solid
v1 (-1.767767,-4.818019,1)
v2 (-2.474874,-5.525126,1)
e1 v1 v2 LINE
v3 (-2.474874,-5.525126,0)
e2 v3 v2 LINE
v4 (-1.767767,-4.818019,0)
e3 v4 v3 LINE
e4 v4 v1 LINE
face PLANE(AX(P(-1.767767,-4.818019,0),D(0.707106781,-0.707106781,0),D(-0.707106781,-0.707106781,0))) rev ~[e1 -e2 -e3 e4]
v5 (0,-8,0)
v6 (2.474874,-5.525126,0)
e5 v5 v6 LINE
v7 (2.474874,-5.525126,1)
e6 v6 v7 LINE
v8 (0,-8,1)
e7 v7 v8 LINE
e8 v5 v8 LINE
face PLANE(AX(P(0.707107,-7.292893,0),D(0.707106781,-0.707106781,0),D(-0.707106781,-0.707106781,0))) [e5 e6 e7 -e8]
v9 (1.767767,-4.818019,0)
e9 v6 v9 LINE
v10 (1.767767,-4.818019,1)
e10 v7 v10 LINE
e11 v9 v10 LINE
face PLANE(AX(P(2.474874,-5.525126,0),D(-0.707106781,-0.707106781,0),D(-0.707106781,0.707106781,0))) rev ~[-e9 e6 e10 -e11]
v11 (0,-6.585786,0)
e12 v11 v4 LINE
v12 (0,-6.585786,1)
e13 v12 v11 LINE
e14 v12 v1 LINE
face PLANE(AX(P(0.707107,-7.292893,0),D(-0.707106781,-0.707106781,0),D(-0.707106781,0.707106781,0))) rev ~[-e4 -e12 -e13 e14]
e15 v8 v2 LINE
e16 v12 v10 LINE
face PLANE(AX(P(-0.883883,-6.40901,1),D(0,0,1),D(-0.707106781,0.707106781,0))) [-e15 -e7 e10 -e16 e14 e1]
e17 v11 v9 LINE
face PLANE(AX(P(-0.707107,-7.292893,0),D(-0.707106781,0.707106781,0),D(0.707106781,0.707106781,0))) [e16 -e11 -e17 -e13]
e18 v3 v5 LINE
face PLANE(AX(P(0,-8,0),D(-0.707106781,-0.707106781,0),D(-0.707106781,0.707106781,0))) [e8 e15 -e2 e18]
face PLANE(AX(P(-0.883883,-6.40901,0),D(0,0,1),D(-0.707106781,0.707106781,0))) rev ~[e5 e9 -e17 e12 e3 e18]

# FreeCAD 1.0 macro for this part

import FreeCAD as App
import Part
import Sketcher
from FreeCAD import Vector


def add_polygon(sketch, points):
    """Adds a closed chain of lines whose ends are joined by coincident constraints."""
    first, n = sketch.GeometryCount, len(points)
    for a, b in zip(points, points[1:] + points[:1]):
        sketch.addGeometry(Part.LineSegment(App.Vector(*a, 0), App.Vector(*b, 0)), False)
    for i in range(n):
        sketch.addConstraint(Sketcher.Constraint("Coincident", first + i, 2, first + (i + 1) % n, 1))

doc = App.newDocument("Part")
body = doc.addObject("PartDesign::Body", "Body")

# Sketch on XY plane
sketch1 = doc.addObject("Sketcher::SketchObject", "Sketch")
body.addObject(sketch1)
sketch1.AttachmentSupport = (doc.XY_Plane, [""])
sketch1.MapMode = "FlatFace"
add_polygon(sketch1, [(0, 1), (0, 0), (3.5, 0), (3.5, 1)])  # lines 0-3
sketch1.addConstraint([
    Sketcher.Constraint("Vertical", 0),
    Sketcher.Constraint("Horizontal", 1),
    Sketcher.Constraint("Vertical", 2),
    Sketcher.Constraint("Horizontal", 3),
    Sketcher.Constraint("Coincident", 0, 2, -1, 1),
    Sketcher.Constraint("DistanceY", 0, 2, 0, 1, 1.0),
    Sketcher.Constraint("DistanceX", 1, 1, 1, 2, 3.5),
])
pad1 = doc.addObject("PartDesign::Pad", "Pad")
body.addObject(pad1)
pad1.Profile = sketch1
pad1.Length = 1
body2 = doc.addObject("PartDesign::Body", "Body001")

# Sketch on XY plane
sketch2 = doc.addObject("Sketcher::SketchObject", "Sketch001")
body2.addObject(sketch2)
sketch2.AttachmentSupport = (doc.getObject("XY_Plane001"), [""])
sketch2.MapMode = "FlatFace"
add_polygon(sketch2, [(0, 0), (1, 0), (1, 3.5), (0, 3.5)])  # lines 0-3
sketch2.addConstraint([
    Sketcher.Constraint("Horizontal", 0),
    Sketcher.Constraint("Vertical", 1),
    Sketcher.Constraint("Horizontal", 2),
    Sketcher.Constraint("Vertical", 3),
    Sketcher.Constraint("Coincident", 3, 2, -1, 1),
    Sketcher.Constraint("DistanceX", 0, 1, 0, 2, 1.0),
    Sketcher.Constraint("DistanceY", 1, 1, 1, 2, 3.5),
])
pad2 = doc.addObject("PartDesign::Pad", "Pad001")
body2.addObject(pad2)
pad2.Profile = sketch2
pad2.Length = 1
doc.recompute()

boolean = doc.addObject("PartDesign::Boolean", "Boolean")
body2.addObject(boolean)
boolean.Type = "Fuse"
boolean.addObjects([body])
body3 = doc.addObject("PartDesign::Body", "Body002")
doc.recompute()

body2.Placement = App.Placement(Vector(0, -8, 0), App.Rotation(Vector(0, 0, 1), 45))
boolean2 = doc.addObject("PartDesign::Boolean", "Boolean001")
body3.addObject(boolean2)
boolean2.Type = "Fuse"
boolean2.addObjects([body2])

doc.recompute()
